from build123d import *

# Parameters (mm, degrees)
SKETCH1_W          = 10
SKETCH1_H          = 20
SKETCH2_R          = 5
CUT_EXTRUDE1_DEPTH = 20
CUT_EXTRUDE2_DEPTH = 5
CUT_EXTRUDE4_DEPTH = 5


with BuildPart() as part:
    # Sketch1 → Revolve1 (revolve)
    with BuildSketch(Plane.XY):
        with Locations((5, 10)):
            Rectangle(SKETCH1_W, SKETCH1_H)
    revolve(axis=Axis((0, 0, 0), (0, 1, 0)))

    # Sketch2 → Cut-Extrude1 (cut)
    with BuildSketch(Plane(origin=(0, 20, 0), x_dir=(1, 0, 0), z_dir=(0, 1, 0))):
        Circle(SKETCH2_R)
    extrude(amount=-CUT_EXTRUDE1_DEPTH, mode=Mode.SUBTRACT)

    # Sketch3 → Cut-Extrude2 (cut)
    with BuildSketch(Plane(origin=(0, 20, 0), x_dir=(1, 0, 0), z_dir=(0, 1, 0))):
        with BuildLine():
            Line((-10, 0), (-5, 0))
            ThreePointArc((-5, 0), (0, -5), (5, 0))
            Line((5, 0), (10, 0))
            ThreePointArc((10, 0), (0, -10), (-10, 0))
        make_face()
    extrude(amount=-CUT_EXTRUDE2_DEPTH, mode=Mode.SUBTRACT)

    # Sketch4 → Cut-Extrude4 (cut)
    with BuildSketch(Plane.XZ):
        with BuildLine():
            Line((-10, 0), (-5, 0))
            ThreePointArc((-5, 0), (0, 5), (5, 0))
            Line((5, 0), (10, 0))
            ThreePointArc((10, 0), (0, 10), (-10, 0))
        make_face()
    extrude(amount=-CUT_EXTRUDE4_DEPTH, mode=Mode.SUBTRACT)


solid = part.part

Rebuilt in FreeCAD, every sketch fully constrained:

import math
import FreeCAD as App
import Part
import Sketcher

V = App.Vector
Q = App.Units.Quantity


def add_polygon(sketch, points):
    """Adds a closed chain of lines whose ends are joined by coincident constraints."""
    first, n = sketch.GeometryCount, len(points)
    for a, b in zip(points, points[1:] + points[:1]):
        sketch.addGeometry(Part.LineSegment(App.Vector(*a, 0), App.Vector(*b, 0)), False)
    for i in range(n):
        sketch.addConstraint(Sketcher.Constraint("Coincident", first + i, 2, first + (i + 1) % n, 1))

doc = App.newDocument("Part")
params = doc.addObject("Spreadsheet::Sheet", "Params")
for row, (alias, value) in enumerate([
    ("sketch1_width", "10 mm"),
    ("sketch1_height", "20 mm"),
    ("revolution_angle", "360 deg"),
    ("sketch2_diameter", "10 mm"),
    ("pocket1_length", "20 mm"),
    ("sketch3_radius", "10 mm"),
    ("sketch3_radius2", "5 mm"),
    ("pocket2_length", "5 mm"),
    ("sketch4_radius", "5 mm"),
    ("sketch4_radius2", "10 mm"),
    ("pocket3_length", "5 mm"),
], start=1):
    params.set(f"A{row}", alias)
    params.set(f"B{row}", "=" + value)
    params.setAlias(f"B{row}", alias)

body = doc.addObject("PartDesign::Body", "Body")

# Sketch on XY plane
sketch1 = doc.addObject("Sketcher::SketchObject", "Sketch")
body.addObject(sketch1)
sketch1.AttachmentSupport = (doc.XY_Plane, [""])
sketch1.MapMode = "FlatFace"
add_polygon(sketch1, [(0, 20), (0, 0), (10, 0), (10, 20)])  # lines 0-3
sketch1.addConstraint([
    Sketcher.Constraint("Vertical", 0),
    Sketcher.Constraint("Horizontal", 1),
    Sketcher.Constraint("Vertical", 2),
    Sketcher.Constraint("Horizontal", 3),
    Sketcher.Constraint("Coincident", 0, 2, -1, 1),
    Sketcher.Constraint("DistanceX", 1, 1, 1, 2, Q("10 mm")),
    Sketcher.Constraint("DistanceY", 0, 2, 0, 1, Q("20 mm")),
])
sketch1.setExpression("Constraints[9]", "Params.sketch1_width")
sketch1.setExpression("Constraints[10]", "Params.sketch1_height")
revolution = doc.addObject("PartDesign::Revolution", "Revolution")
body.addObject(revolution)
revolution.Profile = sketch1
revolution.ReferenceAxis = (sketch1, ["V_Axis"])
revolution.setExpression("Angle", "Params.revolution_angle")

# Sketch on XZ plane
sketch2 = doc.addObject("Sketcher::SketchObject", "Sketch001")
body.addObject(sketch2)
sketch2.AttachmentSupport = (doc.XZ_Plane, [""])
sketch2.MapMode = "FlatFace"
sketch2.AttachmentOffset = App.Placement(V(0, 0, -20), App.Rotation())
sketch2.addGeometry(Part.Circle(V(0, 0, 0), V(0, 0, 1), 5), False)
sketch2.addConstraint([
    Sketcher.Constraint("Coincident", 0, 3, -1, 1),
    Sketcher.Constraint("Diameter", 0, Q("10 mm")),
])
sketch2.setExpression("Constraints[1]", "Params.sketch2_diameter")
pocket1 = doc.addObject("PartDesign::Pocket", "Pocket")
body.addObject(pocket1)
pocket1.Profile = sketch2
pocket1.setExpression("Length", "Params.pocket1_length")
pocket1.Reversed = True

# Sketch on XZ plane
sketch3 = doc.addObject("Sketcher::SketchObject", "Sketch002")
body.addObject(sketch3)
sketch3.AttachmentSupport = (doc.XZ_Plane, [""])
sketch3.MapMode = "FlatFace"
sketch3.AttachmentOffset = App.Placement(V(0, 0, -20), App.Rotation())
sketch3.addGeometry([
    Part.LineSegment(V(-5, 0, 0), V(-10, 0, 0)),
    Part.ArcOfCircle(Part.Circle(V(0, 0, 0), V(0, 0, 1), 10), math.radians(0), math.radians(180)),
    Part.LineSegment(V(10, 0, 0), V(5, 0, 0)),
    Part.ArcOfCircle(Part.Circle(V(0, 0, 0), V(0, 0, 1), 5), math.radians(0), math.radians(180)),
], False)
sketch3.addConstraint([
    Sketcher.Constraint("Coincident", 0, 2, 1, 2),
    Sketcher.Constraint("Coincident", 1, 1, 2, 1),
    Sketcher.Constraint("Coincident", 2, 2, 3, 1),
    Sketcher.Constraint("Coincident", 3, 2, 0, 1),
    Sketcher.Constraint("Horizontal", 0),
    Sketcher.Constraint("Horizontal", 2),
    Sketcher.Constraint("Coincident", 1, 3, -1, 1),
    Sketcher.Constraint("Coincident", 3, 3, -1, 1),
    Sketcher.Constraint("PointOnObject", 0, 2, -1),
    Sketcher.Constraint("PointOnObject", 1, 1, -1),
    Sketcher.Constraint("Radius", 1, Q("10 mm")),
    Sketcher.Constraint("Radius", 3, Q("5 mm")),
])
sketch3.setExpression("Constraints[10]", "Params.sketch3_radius")
sketch3.setExpression("Constraints[11]", "Params.sketch3_radius2")
pocket2 = doc.addObject("PartDesign::Pocket", "Pocket001")
body.addObject(pocket2)
pocket2.Profile = sketch3
pocket2.setExpression("Length", "Params.pocket2_length")
pocket2.Reversed = True

# Sketch on XZ plane
sketch4 = doc.addObject("Sketcher::SketchObject", "Sketch003")
body.addObject(sketch4)
sketch4.AttachmentSupport = (doc.XZ_Plane, [""])
sketch4.MapMode = "FlatFace"
sketch4.addGeometry([
    Part.LineSegment(V(-10, 0, 0), V(-5, 0, 0)),
    Part.ArcOfCircle(Part.Circle(V(0, 0, 0), V(0, 0, 1), 5), math.radians(0), math.radians(180)),
    Part.LineSegment(V(5, 0, 0), V(10, 0, 0)),
    Part.ArcOfCircle(Part.Circle(V(0, 0, 0), V(0, 0, 1), 10), math.radians(0), math.radians(180)),
], False)
sketch4.addConstraint([
    Sketcher.Constraint("Coincident", 0, 2, 1, 2),
    Sketcher.Constraint("Coincident", 1, 1, 2, 1),
    Sketcher.Constraint("Coincident", 2, 2, 3, 1),
    Sketcher.Constraint("Coincident", 3, 2, 0, 1),
    Sketcher.Constraint("Horizontal", 0),
    Sketcher.Constraint("Horizontal", 2),
    Sketcher.Constraint("Coincident", 1, 3, -1, 1),
    Sketcher.Constraint("Coincident", 3, 3, -1, 1),
    Sketcher.Constraint("PointOnObject", 0, 2, -1),
    Sketcher.Constraint("PointOnObject", 1, 1, -1),
    Sketcher.Constraint("Radius", 1, Q("5 mm")),
    Sketcher.Constraint("Radius", 3, Q("10 mm")),
])
sketch4.setExpression("Constraints[10]", "Params.sketch4_radius")
sketch4.setExpression("Constraints[11]", "Params.sketch4_radius2")
pocket3 = doc.addObject("PartDesign::Pocket", "Pocket002")
body.addObject(pocket3)
pocket3.Profile = sketch4
pocket3.setExpression("Length", "Params.pocket3_length")

doc.recompute()
